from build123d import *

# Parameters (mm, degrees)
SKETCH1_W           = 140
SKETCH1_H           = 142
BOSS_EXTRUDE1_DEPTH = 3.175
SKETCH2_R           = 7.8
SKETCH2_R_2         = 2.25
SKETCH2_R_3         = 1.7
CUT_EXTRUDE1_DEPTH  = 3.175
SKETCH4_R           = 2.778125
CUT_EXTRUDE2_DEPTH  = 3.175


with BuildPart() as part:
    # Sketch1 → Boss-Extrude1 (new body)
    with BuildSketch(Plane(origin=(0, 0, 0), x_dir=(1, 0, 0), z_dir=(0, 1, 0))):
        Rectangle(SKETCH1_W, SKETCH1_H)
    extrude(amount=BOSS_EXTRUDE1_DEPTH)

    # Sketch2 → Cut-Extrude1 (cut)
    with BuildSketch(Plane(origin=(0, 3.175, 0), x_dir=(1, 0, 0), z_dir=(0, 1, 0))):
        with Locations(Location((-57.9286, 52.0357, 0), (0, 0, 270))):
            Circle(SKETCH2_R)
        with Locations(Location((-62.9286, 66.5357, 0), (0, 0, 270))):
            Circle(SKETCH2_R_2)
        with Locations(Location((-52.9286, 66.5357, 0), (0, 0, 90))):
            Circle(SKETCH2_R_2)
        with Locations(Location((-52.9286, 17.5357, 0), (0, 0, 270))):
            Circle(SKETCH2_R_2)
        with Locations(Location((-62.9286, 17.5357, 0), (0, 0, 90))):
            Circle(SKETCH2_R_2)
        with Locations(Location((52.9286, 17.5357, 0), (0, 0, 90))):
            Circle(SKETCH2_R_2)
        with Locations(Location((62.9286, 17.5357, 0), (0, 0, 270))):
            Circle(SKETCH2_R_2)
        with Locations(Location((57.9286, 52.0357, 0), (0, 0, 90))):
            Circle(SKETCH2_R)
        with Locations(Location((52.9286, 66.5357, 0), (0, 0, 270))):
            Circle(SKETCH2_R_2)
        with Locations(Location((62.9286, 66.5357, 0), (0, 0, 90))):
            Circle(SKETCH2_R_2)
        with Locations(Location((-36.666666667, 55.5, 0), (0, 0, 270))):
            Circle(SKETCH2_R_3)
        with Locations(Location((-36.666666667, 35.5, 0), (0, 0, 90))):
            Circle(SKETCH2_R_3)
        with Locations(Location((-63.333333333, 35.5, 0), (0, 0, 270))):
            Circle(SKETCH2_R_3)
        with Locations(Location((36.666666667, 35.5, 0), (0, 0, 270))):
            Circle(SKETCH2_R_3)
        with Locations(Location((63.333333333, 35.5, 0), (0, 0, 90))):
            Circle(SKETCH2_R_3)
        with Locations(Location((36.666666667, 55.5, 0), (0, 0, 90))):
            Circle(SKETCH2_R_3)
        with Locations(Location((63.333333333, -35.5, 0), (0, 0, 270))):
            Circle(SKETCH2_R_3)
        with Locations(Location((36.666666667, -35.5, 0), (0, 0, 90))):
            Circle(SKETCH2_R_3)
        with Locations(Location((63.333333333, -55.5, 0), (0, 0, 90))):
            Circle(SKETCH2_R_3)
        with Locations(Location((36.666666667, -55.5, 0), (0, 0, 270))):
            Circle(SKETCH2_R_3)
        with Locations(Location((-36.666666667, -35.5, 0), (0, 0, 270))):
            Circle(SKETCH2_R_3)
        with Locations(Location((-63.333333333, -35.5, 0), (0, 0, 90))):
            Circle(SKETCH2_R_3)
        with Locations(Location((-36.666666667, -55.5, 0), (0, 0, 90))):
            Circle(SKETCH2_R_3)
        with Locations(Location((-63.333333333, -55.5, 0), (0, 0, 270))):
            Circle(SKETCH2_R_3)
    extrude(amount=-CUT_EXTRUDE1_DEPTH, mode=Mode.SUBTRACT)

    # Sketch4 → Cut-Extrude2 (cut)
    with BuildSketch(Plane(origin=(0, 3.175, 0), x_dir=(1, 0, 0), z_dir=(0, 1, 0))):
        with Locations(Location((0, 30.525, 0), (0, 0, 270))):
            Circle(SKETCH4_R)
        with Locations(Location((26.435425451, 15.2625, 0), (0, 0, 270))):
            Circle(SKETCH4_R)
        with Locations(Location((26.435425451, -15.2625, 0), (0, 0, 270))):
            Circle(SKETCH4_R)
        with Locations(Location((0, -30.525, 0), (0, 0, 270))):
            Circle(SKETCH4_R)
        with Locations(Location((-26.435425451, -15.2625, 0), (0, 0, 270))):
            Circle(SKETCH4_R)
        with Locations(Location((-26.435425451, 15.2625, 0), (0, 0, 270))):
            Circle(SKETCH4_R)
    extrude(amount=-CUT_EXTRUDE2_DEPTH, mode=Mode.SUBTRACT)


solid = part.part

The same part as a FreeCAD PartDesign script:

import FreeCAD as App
import Part
import Sketcher
from FreeCAD import Vector
Q = App.Units.Quantity

doc = App.newDocument("Part")
body = doc.addObject("PartDesign::Body", "Body")

# Sketch on XZ plane
sketch1 = body.newObject("Sketcher::SketchObject", "Sketch")
sketch1.AttachmentSupport = (doc.getObject("XZ_Plane"), [""])
sketch1.MapMode = "FlatFace"
sketch1.addGeometry(Part.LineSegment(Vector(-70, -71, 0), Vector(-70, 71, 0)), False)
sketch1.addGeometry(Part.LineSegment(Vector(-70, 71, 0), Vector(70, 71, 0)), False)
sketch1.addGeometry(Part.LineSegment(Vector(70, 71, 0), Vector(70, -71, 0)), False)
sketch1.addGeometry(Part.LineSegment(Vector(70, -71, 0), Vector(-70, -71, 0)), False)
sketch1.addConstraint(Sketcher.Constraint("Coincident", 0, 2, 1, 1))
sketch1.addConstraint(Sketcher.Constraint("Coincident", 1, 2, 2, 1))
sketch1.addConstraint(Sketcher.Constraint("Coincident", 2, 2, 3, 1))
sketch1.addConstraint(Sketcher.Constraint("Coincident", 3, 2, 0, 1))
sketch1.addConstraint(Sketcher.Constraint("Vertical", 0))
sketch1.addConstraint(Sketcher.Constraint("Horizontal", 1))
sketch1.addConstraint(Sketcher.Constraint("Vertical", 2))
sketch1.addConstraint(Sketcher.Constraint("Horizontal", 3))
sketch1.addConstraint(Sketcher.Constraint("Symmetric", 0, 2, 2, 2, -1, 1))
sketch1.addConstraint(Sketcher.Constraint("DistanceX", 1, 1, 1, 2, Q("140 mm")))
sketch1.addConstraint(Sketcher.Constraint("DistanceY", 0, 1, 0, 2, Q("142 mm")))
pad1 = body.newObject("PartDesign::Pad", "Pad")
pad1.Profile = sketch1
pad1.Length = 3.175
pad1.Reversed = True

# Sketch on XZ plane
sketch2 = body.newObject("Sketcher::SketchObject", "Sketch001")
sketch2.AttachmentSupport = (doc.getObject("XZ_Plane"), [""])
sketch2.MapMode = "FlatFace"
sketch2.AttachmentOffset = App.Placement(Vector(0, 0, -3.175), App.Rotation())
sketch2.addGeometry(Part.Circle(Vector(-57.9, -52, 0), Vector(0, 0, 1), 7.8), False)
sketch2.addGeometry(Part.Circle(Vector(-62.9, -66.5, 0), Vector(0, 0, 1), 2.2), False)
sketch2.addGeometry(Part.Circle(Vector(-52.9, -66.5, 0), Vector(0, 0, 1), 2.2), False)
sketch2.addGeometry(Part.Circle(Vector(-52.9, -17.5, 0), Vector(0, 0, 1), 2.2), False)
sketch2.addGeometry(Part.Circle(Vector(-62.9, -17.5, 0), Vector(0, 0, 1), 2.2), False)
sketch2.addGeometry(Part.Circle(Vector(52.9, -17.5, 0), Vector(0, 0, 1), 2.2), False)
sketch2.addGeometry(Part.Circle(Vector(62.9, -17.5, 0), Vector(0, 0, 1), 2.2), False)
sketch2.addGeometry(Part.Circle(Vector(57.9, -52, 0), Vector(0, 0, 1), 7.8), False)
sketch2.addGeometry(Part.Circle(Vector(52.9, -66.5, 0), Vector(0, 0, 1), 2.2), False)
sketch2.addGeometry(Part.Circle(Vector(62.9, -66.5, 0), Vector(0, 0, 1), 2.2), False)
sketch2.addGeometry(Part.Circle(Vector(-36.7, -55.5, 0), Vector(0, 0, 1), 1.7), False)
sketch2.addGeometry(Part.Circle(Vector(-36.7, -35.5, 0), Vector(0, 0, 1), 1.7), False)
sketch2.addGeometry(Part.Circle(Vector(-63.3, -35.5, 0), Vector(0, 0, 1), 1.7), False)
sketch2.addGeometry(Part.Circle(Vector(36.7, -35.5, 0), Vector(0, 0, 1), 1.7), False)
sketch2.addGeometry(Part.Circle(Vector(63.3, -35.5, 0), Vector(0, 0, 1), 1.7), False)
sketch2.addGeometry(Part.Circle(Vector(36.7, -55.5, 0), Vector(0, 0, 1), 1.7), False)
sketch2.addGeometry(Part.Circle(Vector(63.3, 35.5, 0), Vector(0, 0, 1), 1.7), False)
sketch2.addGeometry(Part.Circle(Vector(36.7, 35.5, 0), Vector(0, 0, 1), 1.7), False)
sketch2.addGeometry(Part.Circle(Vector(63.3, 55.5, 0), Vector(0, 0, 1), 1.7), False)
sketch2.addGeometry(Part.Circle(Vector(36.7, 55.5, 0), Vector(0, 0, 1), 1.7), False)
sketch2.addGeometry(Part.Circle(Vector(-36.7, 35.5, 0), Vector(0, 0, 1), 1.7), False)
sketch2.addGeometry(Part.Circle(Vector(-63.3, 35.5, 0), Vector(0, 0, 1), 1.7), False)
sketch2.addGeometry(Part.Circle(Vector(-36.7, 55.5, 0), Vector(0, 0, 1), 1.7), False)
sketch2.addGeometry(Part.Circle(Vector(-63.3, 55.5, 0), Vector(0, 0, 1), 1.7), False)
sketch2.addConstraint(Sketcher.Constraint("Equal", 1, 2))
sketch2.addConstraint(Sketcher.Constraint("Equal", 2, 3))
sketch2.addConstraint(Sketcher.Constraint("Equal", 3, 4))
sketch2.addConstraint(Sketcher.Constraint("Equal", 4, 5))
sketch2.addConstraint(Sketcher.Constraint("Equal", 5, 6))
sketch2.addConstraint(Sketcher.Constraint("Equal", 0, 7))
sketch2.addConstraint(Sketcher.Constraint("Equal", 6, 8))
sketch2.addConstraint(Sketcher.Constraint("Equal", 8, 9))
sketch2.addConstraint(Sketcher.Constraint("Equal", 10, 11))
sketch2.addConstraint(Sketcher.Constraint("Equal", 11, 12))
sketch2.addConstraint(Sketcher.Constraint("Equal", 12, 13))
sketch2.addConstraint(Sketcher.Constraint("Equal", 13, 14))
sketch2.addConstraint(Sketcher.Constraint("Equal", 14, 15))
sketch2.addConstraint(Sketcher.Constraint("Equal", 15, 16))
sketch2.addConstraint(Sketcher.Constraint("Equal", 16, 17))
sketch2.addConstraint(Sketcher.Constraint("Equal", 17, 18))
sketch2.addConstraint(Sketcher.Constraint("Equal", 18, 19))
sketch2.addConstraint(Sketcher.Constraint("Equal", 19, 20))
sketch2.addConstraint(Sketcher.Constraint("Equal", 20, 21))
sketch2.addConstraint(Sketcher.Constraint("Equal", 21, 22))
sketch2.addConstraint(Sketcher.Constraint("Equal", 22, 23))
sketch2.addConstraint(Sketcher.Constraint("Symmetric", 12, 3, 16, 3, -1, 1))
sketch2.addConstraint(Sketcher.Constraint("Symmetric", 11, 3, 17, 3, -1, 1))
sketch2.addConstraint(Sketcher.Constraint("Symmetric", 10, 3, 19, 3, -1, 1))
sketch2.addConstraint(Sketcher.Constraint("Symmetric", 13, 3, 20, 3, -1, 1))
sketch2.addConstraint(Sketcher.Constraint("Symmetric", 14, 3, 21, 3, -1, 1))
sketch2.addConstraint(Sketcher.Constraint("Symmetric", 15, 3, 22, 3, -1, 1))
sketch2.addConstraint(Sketcher.Constraint("Symmetric", 3, 3, 5, 3, -2))
sketch2.addConstraint(Sketcher.Constraint("Symmetric", 4, 3, 6, 3, -2))
sketch2.addConstraint(Sketcher.Constraint("Symmetric", 0, 3, 7, 3, -2))
sketch2.addConstraint(Sketcher.Constraint("Symmetric", 2, 3, 8, 3, -2))
sketch2.addConstraint(Sketcher.Constraint("Symmetric", 1, 3, 9, 3, -2))
sketch2.addConstraint(Sketcher.Constraint("Symmetric", 11, 3, 13, 3, -2))
sketch2.addConstraint(Sketcher.Constraint("Symmetric", 12, 3, 14, 3, -2))
sketch2.addConstraint(Sketcher.Constraint("Symmetric", 10, 3, 15, 3, -2))
sketch2.addConstraint(Sketcher.Constraint("Symmetric", 18, 3, 23, 3, -2))
sketch2.addConstraint(Sketcher.Constraint("Horizontal", 1, 3, 2, 3))
sketch2.addConstraint(Sketcher.Constraint("Horizontal", 3, 3, 4, 3))
sketch2.addConstraint(Sketcher.Constraint("Horizontal", 11, 3, 12, 3))
sketch2.addConstraint(Sketcher.Constraint("Horizontal", 18, 3, 19, 3))
sketch2.addConstraint(Sketcher.Constraint("Vertical", 2, 3, 3, 3))
sketch2.addConstraint(Sketcher.Constraint("Vertical", 1, 3, 4, 3))
sketch2.addConstraint(Sketcher.Constraint("Vertical", 10, 3, 11, 3))
sketch2.addConstraint(Sketcher.Constraint("Vertical", 16, 3, 18, 3))
sketch2.addConstraint(Sketcher.Constraint("Diameter", 0, Q("15.6 mm")))
sketch2.addConstraint(Sketcher.Constraint("Diameter", 1, Q("4.5 mm")))
sketch2.addConstraint(Sketcher.Constraint("Diameter", 10, Q("3.4 mm")))
sketch2.addConstraint(Sketcher.Constraint("DistanceX", 1, 3, 0, 3, Q("5 mm")))
sketch2.addConstraint(Sketcher.Constraint("DistanceX", 1, 3, 2, 3, Q("10 mm")))
sketch2.addConstraint(Sketcher.Constraint("DistanceY", 2, 3, 3, 3, Q("49 mm")))
sketch2.addConstraint(Sketcher.Constraint("DistanceY", 10, 3, 11, 3, Q("20 mm")))
sketch2.addConstraint(Sketcher.Constraint("DistanceY", 14, 3, 16, 3, Q("71 mm")))
sketch2.addConstraint(Sketcher.Constraint("DistanceY", 1, 3, 0, 3, Q("14.5 mm")))
sketch2.addConstraint(Sketcher.Constraint("DistanceX", 0, 3, -1, 1, Q("57.9286 mm")))
sketch2.addConstraint(Sketcher.Constraint("DistanceY", 0, 3, -1, 1, Q("52.0357 mm")))
sketch2.addConstraint(Sketcher.Constraint("DistanceX", 10, 3, -1, 1, Q("36.666667 mm")))
sketch2.addConstraint(Sketcher.Constraint("DistanceX", 12, 3, -1, 1, Q("63.333333 mm")))
pocket1 = body.newObject("PartDesign::Pocket", "Pocket")
pocket1.Profile = sketch2
pocket1.Length = 3.175
pocket1.Reversed = True

# Sketch on XZ plane
sketch3 = body.newObject("Sketcher::SketchObject", "Sketch002")
sketch3.AttachmentSupport = (doc.getObject("XZ_Plane"), [""])
sketch3.MapMode = "FlatFace"
sketch3.AttachmentOffset = App.Placement(Vector(0, 0, -3.175), App.Rotation())
sketch3.addGeometry(Part.Circle(Vector(0, -30.5, 0), Vector(0, 0, 1), 2.8), False)
sketch3.addGeometry(Part.Circle(Vector(26.4, -15.3, 0), Vector(0, 0, 1), 2.8), False)
sketch3.addGeometry(Part.Circle(Vector(26.4, 15.3, 0), Vector(0, 0, 1), 2.8), False)
sketch3.addGeometry(Part.Circle(Vector(0, 30.5, 0), Vector(0, 0, 1), 2.8), False)
sketch3.addGeometry(Part.Circle(Vector(-26.4, 15.3, 0), Vector(0, 0, 1), 2.8), False)
sketch3.addGeometry(Part.Circle(Vector(-26.4, -15.3, 0), Vector(0, 0, 1), 2.8), False)
sketch3.addConstraint(Sketcher.Constraint("Equal", 0, 1))
sketch3.addConstraint(Sketcher.Constraint("Equal", 1, 2))
sketch3.addConstraint(Sketcher.Constraint("Equal", 2, 3))
sketch3.addConstraint(Sketcher.Constraint("Equal", 3, 4))
sketch3.addConstraint(Sketcher.Constraint("Equal", 4, 5))
sketch3.addConstraint(Sketcher.Constraint("Symmetric", 0, 3, 3, 3, -1, 1))
sketch3.addConstraint(Sketcher.Constraint("Symmetric", 1, 3, 4, 3, -1, 1))
sketch3.addConstraint(Sketcher.Constraint("Symmetric", 2, 3, 5, 3, -1, 1))
sketch3.addConstraint(Sketcher.Constraint("Symmetric", 2, 3, 4, 3, -2))
sketch3.addConstraint(Sketcher.Constraint("PointOnObject", 0, 3, -2))
sketch3.addConstraint(Sketcher.Constraint("Diameter", 0, Q("5.55625 mm")))
sketch3.addConstraint(Sketcher.Constraint("DistanceY", 0, 3, 3, 3, Q("61.05 mm")))
sketch3.addConstraint(Sketcher.Constraint("DistanceY", 1, 3, 2, 3, Q("30.525 mm")))
sketch3.addConstraint(Sketcher.Constraint("DistanceX", 4, 3, 2, 3, Q("52.870851 mm")))
pocket2 = body.newObject("PartDesign::Pocket", "Pocket001")
pocket2.Profile = sketch3
pocket2.Length = 3.175
pocket2.Reversed = True

doc.recompute()
